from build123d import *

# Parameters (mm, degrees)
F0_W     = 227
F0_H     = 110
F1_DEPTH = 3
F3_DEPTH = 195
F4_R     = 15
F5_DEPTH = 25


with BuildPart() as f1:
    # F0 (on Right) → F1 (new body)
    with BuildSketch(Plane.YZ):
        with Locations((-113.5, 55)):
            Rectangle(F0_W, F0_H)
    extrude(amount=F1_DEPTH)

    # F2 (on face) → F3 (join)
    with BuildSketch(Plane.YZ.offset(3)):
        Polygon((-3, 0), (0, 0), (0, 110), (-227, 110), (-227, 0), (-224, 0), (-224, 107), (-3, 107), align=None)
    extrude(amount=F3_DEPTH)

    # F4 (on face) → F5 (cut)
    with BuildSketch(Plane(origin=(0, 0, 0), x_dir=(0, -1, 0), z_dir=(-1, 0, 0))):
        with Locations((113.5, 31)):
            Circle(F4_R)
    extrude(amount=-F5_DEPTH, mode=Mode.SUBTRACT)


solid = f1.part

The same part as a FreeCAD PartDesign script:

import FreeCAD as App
import Part
import Sketcher
from FreeCAD import Vector
Q = App.Units.Quantity


def add_polygon(sketch, points):
    """Adds a closed chain of lines whose ends are joined by coincident constraints."""
    first, n = sketch.GeometryCount, len(points)
    for a, b in zip(points, points[1:] + points[:1]):
        sketch.addGeometry(Part.LineSegment(App.Vector(*a, 0), App.Vector(*b, 0)), False)
    for i in range(n):
        sketch.addConstraint(Sketcher.Constraint("Coincident", first + i, 2, first + (i + 1) % n, 1))

doc = App.newDocument("Part")
body = doc.addObject("PartDesign::Body", "Body")

# Sketch on YZ plane
sketch1 = body.newObject("Sketcher::SketchObject", "Sketch")
sketch1.AttachmentSupport = (doc.getObject("YZ_Plane"), [""])
sketch1.MapMode = "FlatFace"
add_polygon(sketch1, [(-227, 110), (-227, 0), (0, 0), (0, 110)])  # lines 0-3
sketch1.addConstraint(Sketcher.Constraint("Vertical", 0))
sketch1.addConstraint(Sketcher.Constraint("Horizontal", 1))
sketch1.addConstraint(Sketcher.Constraint("Vertical", 2))
sketch1.addConstraint(Sketcher.Constraint("Horizontal", 3))
sketch1.addConstraint(Sketcher.Constraint("Coincident", 1, 2, -1, 1))
sketch1.addConstraint(Sketcher.Constraint("DistanceX", 1, 1, 1, 2, Q("227 mm")))
sketch1.addConstraint(Sketcher.Constraint("DistanceY", 0, 2, 0, 1, Q("110 mm")))
pad1 = body.newObject("PartDesign::Pad", "Pad")
pad1.Profile = sketch1
pad1.Length = 3

# Sketch on YZ plane
sketch2 = body.newObject("Sketcher::SketchObject", "Sketch001")
sketch2.AttachmentSupport = (doc.getObject("YZ_Plane"), [""])
sketch2.MapMode = "FlatFace"
sketch2.AttachmentOffset = App.Placement(Vector(0, 0, 3), App.Rotation())
add_polygon(sketch2, [(-3, 0), (0, 0), (0, 110), (-227, 110), (-227, 0), (-224, 0), (-224, 107), (-3, 107)])  # lines 0-7
sketch2.addConstraint(Sketcher.Constraint("Horizontal", 0))
sketch2.addConstraint(Sketcher.Constraint("Vertical", 1))
sketch2.addConstraint(Sketcher.Constraint("Horizontal", 2))
sketch2.addConstraint(Sketcher.Constraint("Vertical", 3))
sketch2.addConstraint(Sketcher.Constraint("Horizontal", 4))
sketch2.addConstraint(Sketcher.Constraint("Vertical", 5))
sketch2.addConstraint(Sketcher.Constraint("Horizontal", 6))
sketch2.addConstraint(Sketcher.Constraint("Vertical", 7))
sketch2.addConstraint(Sketcher.Constraint("Coincident", 0, 2, -1, 1))
sketch2.addConstraint(Sketcher.Constraint("PointOnObject", 3, 2, -1))
sketch2.addConstraint(Sketcher.Constraint("Equal", 0, 4))
sketch2.addConstraint(Sketcher.Constraint("DistanceX", 0, 1, 0, 2, Q("3 mm")))
sketch2.addConstraint(Sketcher.Constraint("DistanceX", 2, 2, 2, 1, Q("227 mm")))
sketch2.addConstraint(Sketcher.Constraint("DistanceY", 1, 1, 1, 2, Q("110 mm")))
sketch2.addConstraint(Sketcher.Constraint("DistanceY", 5, 1, 5, 2, Q("107 mm")))
pad2 = body.newObject("PartDesign::Pad", "Pad001")
pad2.Profile = sketch2
pad2.Length = 195

# Sketch on YZ plane
sketch3 = body.newObject("Sketcher::SketchObject", "Sketch002")
sketch3.AttachmentSupport = (doc.getObject("YZ_Plane"), [""])
sketch3.MapMode = "FlatFace"
sketch3.addGeometry(Part.Circle(Vector(-114, 31, 0), Vector(0, 0, 1), 15), False)
sketch3.addConstraint(Sketcher.Constraint("Diameter", 0, Q("30 mm")))
sketch3.addConstraint(Sketcher.Constraint("DistanceY", -1, 1, 0, 3, Q("31 mm")))
sketch3.addConstraint(Sketcher.Constraint("DistanceX", 0, 3, -1, 1, Q("113.5 mm")))
pocket1 = body.newObject("PartDesign::Pocket", "Pocket")
pocket1.Profile = sketch3
pocket1.Length = 25
pocket1.Reversed = True

doc.recompute()
